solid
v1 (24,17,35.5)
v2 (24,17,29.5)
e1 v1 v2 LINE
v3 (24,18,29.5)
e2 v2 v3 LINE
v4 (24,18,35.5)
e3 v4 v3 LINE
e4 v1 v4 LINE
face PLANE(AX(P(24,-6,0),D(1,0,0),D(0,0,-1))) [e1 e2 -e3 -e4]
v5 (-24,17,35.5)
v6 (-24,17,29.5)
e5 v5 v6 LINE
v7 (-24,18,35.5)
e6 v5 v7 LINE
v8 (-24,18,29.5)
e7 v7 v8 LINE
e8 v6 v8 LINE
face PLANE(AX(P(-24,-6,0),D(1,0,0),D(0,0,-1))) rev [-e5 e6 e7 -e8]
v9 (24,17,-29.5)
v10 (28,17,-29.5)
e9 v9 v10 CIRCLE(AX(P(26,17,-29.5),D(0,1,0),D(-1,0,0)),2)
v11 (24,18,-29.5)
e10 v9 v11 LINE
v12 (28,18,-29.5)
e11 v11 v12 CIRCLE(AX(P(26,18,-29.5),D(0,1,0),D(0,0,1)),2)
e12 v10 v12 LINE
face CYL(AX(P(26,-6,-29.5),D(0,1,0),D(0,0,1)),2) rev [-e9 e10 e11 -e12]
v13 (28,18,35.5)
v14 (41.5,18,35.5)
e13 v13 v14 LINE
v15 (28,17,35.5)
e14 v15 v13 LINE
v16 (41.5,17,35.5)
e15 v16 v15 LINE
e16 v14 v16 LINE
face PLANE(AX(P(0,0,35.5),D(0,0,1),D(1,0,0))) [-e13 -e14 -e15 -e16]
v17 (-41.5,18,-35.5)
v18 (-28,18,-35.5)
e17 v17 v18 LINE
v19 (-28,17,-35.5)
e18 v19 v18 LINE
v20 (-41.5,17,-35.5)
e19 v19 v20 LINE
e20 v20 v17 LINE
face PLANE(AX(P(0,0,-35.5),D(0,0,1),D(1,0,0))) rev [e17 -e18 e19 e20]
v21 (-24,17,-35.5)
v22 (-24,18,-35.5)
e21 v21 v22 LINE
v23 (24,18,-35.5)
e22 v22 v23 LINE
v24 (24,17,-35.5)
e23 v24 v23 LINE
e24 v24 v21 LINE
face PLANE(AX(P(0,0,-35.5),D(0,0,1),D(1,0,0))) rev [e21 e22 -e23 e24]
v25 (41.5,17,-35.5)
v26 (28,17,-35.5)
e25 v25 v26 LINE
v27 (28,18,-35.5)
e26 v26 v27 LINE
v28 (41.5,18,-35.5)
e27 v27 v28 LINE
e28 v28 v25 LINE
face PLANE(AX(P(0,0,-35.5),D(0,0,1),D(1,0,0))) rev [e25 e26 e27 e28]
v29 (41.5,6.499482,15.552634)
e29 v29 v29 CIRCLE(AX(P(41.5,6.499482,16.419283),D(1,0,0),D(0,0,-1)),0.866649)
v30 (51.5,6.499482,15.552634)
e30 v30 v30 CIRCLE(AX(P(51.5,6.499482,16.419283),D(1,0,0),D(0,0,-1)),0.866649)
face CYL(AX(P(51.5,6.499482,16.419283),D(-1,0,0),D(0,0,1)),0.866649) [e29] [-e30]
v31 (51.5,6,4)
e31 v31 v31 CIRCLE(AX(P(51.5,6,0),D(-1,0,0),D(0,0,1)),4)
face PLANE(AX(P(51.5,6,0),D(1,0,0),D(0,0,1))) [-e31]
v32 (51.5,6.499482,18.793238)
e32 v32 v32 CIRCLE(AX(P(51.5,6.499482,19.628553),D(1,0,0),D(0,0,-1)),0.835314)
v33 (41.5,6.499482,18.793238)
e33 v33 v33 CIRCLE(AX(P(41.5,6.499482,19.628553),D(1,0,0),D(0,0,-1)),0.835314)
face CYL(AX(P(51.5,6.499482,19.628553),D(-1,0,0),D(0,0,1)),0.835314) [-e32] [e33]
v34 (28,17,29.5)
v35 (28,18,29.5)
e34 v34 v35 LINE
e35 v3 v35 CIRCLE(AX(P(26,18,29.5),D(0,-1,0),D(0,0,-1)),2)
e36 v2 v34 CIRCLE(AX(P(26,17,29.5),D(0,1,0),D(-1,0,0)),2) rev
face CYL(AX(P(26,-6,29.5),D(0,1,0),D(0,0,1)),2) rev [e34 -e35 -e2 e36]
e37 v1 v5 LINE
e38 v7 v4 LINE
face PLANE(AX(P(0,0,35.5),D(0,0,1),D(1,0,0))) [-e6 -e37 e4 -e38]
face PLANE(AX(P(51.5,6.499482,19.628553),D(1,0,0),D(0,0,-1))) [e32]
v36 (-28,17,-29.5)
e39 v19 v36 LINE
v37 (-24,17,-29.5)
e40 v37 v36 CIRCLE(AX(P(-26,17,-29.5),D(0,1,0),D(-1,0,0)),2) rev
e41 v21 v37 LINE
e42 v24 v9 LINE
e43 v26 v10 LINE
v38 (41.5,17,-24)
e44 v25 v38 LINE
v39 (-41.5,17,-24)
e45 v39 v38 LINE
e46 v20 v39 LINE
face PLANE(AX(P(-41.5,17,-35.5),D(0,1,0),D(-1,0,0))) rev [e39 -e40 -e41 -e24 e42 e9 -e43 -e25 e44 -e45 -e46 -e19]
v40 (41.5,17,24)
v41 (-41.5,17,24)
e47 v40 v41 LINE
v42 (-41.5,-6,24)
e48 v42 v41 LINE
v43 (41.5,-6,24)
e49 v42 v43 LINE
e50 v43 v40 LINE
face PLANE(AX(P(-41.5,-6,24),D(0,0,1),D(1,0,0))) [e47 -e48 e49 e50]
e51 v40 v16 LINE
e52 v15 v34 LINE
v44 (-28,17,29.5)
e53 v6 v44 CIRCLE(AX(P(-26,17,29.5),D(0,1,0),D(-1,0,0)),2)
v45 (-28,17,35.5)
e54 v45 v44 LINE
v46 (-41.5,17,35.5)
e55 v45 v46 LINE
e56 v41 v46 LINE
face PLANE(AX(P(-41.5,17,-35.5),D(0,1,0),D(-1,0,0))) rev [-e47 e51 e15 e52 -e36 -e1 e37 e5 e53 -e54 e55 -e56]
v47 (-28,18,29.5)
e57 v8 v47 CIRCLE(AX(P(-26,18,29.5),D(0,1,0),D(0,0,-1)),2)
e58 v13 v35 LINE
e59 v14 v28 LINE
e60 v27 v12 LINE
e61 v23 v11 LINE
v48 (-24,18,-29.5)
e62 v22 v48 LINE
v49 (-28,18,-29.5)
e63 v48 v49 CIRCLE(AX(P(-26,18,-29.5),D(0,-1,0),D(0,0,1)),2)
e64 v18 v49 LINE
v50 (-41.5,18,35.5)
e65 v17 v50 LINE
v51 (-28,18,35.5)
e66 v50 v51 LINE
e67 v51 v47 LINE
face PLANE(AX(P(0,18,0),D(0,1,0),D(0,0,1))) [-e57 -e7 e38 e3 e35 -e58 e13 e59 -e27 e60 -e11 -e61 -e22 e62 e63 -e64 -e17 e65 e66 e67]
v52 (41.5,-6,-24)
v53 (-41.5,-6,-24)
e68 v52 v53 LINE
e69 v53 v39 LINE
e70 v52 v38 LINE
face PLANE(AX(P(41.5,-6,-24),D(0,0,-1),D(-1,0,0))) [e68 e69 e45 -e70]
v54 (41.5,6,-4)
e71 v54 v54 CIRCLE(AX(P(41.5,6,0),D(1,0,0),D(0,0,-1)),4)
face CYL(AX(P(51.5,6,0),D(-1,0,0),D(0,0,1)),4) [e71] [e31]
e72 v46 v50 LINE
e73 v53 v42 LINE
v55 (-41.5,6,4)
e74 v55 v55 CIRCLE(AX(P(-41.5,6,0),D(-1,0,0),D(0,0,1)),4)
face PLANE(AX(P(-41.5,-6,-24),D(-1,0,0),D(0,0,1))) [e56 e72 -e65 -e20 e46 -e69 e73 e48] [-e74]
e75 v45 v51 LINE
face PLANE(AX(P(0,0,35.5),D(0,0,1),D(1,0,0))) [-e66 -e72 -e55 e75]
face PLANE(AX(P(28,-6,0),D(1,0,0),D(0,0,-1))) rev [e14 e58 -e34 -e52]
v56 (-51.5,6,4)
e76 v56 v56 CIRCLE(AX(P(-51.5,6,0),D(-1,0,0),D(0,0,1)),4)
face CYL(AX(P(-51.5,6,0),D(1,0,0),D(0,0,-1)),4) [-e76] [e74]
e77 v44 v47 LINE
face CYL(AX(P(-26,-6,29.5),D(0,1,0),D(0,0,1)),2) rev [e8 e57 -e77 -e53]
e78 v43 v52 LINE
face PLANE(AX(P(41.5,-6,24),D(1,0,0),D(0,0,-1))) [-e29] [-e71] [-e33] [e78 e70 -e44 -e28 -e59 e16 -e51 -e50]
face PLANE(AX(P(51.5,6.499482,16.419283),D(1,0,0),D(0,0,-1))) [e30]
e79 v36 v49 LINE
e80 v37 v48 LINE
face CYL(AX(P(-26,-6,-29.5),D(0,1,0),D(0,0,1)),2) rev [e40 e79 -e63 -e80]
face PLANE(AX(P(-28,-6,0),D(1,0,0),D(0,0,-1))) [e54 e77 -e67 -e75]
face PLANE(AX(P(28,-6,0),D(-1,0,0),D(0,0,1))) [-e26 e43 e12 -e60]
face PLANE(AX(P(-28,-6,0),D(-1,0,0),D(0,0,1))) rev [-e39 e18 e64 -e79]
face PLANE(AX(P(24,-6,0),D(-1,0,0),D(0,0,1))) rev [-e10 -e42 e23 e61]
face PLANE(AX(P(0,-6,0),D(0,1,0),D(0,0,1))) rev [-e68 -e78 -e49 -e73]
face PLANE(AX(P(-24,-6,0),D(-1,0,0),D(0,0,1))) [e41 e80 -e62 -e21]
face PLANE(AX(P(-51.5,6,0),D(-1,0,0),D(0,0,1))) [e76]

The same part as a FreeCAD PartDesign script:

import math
import FreeCAD as App
import Part
import Sketcher
Q = App.Units.Quantity


def add_polygon(sketch, points):
    """Adds a closed chain of lines whose ends are joined by coincident constraints."""
    first, n = sketch.GeometryCount, len(points)
    for a, b in zip(points, points[1:] + points[:1]):
        sketch.addGeometry(Part.LineSegment(App.Vector(*a, 0), App.Vector(*b, 0)), False)
    for i in range(n):
        sketch.addConstraint(Sketcher.Constraint("Coincident", first + i, 2, first + (i + 1) % n, 1))

doc = App.newDocument("Part")
body = doc.addObject("PartDesign::Body", "Body")

sketch1 = body.newObject("Sketcher::SketchObject", "Sketch")
sketch1.AttachmentSupport = (doc.getObject("XZ_Plane"), [""])
sketch1.MapMode = "FlatFace"
sketch1.AttachmentOffset = App.Placement(App.Vector(0, 0, -18), App.Rotation())
add_polygon(sketch1, [(-42, -24), (-42, 24), (42, 24), (42, -24)])
sketch1.addConstraint([
    Sketcher.Constraint("Vertical", 0),
    Sketcher.Constraint("Horizontal", 1),
    Sketcher.Constraint("Vertical", 2),
    Sketcher.Constraint("Horizontal", 3),
    Sketcher.Constraint("Symmetric", 0, 2, 2, 2, -1, 1),
    Sketcher.Constraint("DistanceX", 1, 1, 1, 2, Q("83 mm")),
    Sketcher.Constraint("DistanceY", 0, 1, 0, 2, Q("48 mm")),
])
pad1 = body.newObject("PartDesign::Pad", "Pad")
pad1.Profile = sketch1
pad1.Length = 24

sketch2 = body.newObject("Sketcher::SketchObject", "Sketch001")
sketch2.AttachmentSupport = (doc.getObject("XY_Plane"), [""])
sketch2.MapMode = "FlatFace"
add_polygon(sketch2, [(41.5, 18), (41.5, 17), (-41.5, 17), (-41.5, 18)])
sketch2.addConstraint([
    Sketcher.Constraint("Vertical", 0),
    Sketcher.Constraint("Horizontal", 1),
    Sketcher.Constraint("Vertical", 2),
    Sketcher.Constraint("Horizontal", 3),
    Sketcher.Constraint("DistanceX", 1, 2, 1, 1, Q("83 mm")),
    Sketcher.Constraint("DistanceY", 0, 2, 0, 1, Q("1 mm")),
    Sketcher.Constraint("DistanceY", -1, 1, 0, 2, Q("17 mm")),
    Sketcher.Constraint("DistanceX", -1, 1, 0, 2, Q("41.5 mm")),
])
pad2 = body.newObject("PartDesign::Pad", "Pad001")
pad2.Profile = sketch2
pad2.Length = 71
pad2.Midplane = True

sketch3 = body.newObject("Sketcher::SketchObject", "Sketch002")
sketch3.AttachmentSupport = (doc.getObject("XZ_Plane"), [""])
sketch3.MapMode = "FlatFace"
sketch3.AttachmentOffset = App.Placement(App.Vector(0, 0, -18), App.Rotation())
sketch3.addGeometry([
    Part.ArcOfCircle(Part.Circle(App.Vector(26, -29.5, 0), App.Vector(0, 0, 1), 2), math.radians(0), math.radians(180)),
    Part.LineSegment(App.Vector(28, -29.5, 0), App.Vector(28, -35.5, 0)),
    Part.LineSegment(App.Vector(28, -35.5, 0), App.Vector(24, -35.5, 0)),
    Part.LineSegment(App.Vector(24, -35.5, 0), App.Vector(24, -29.5, 0)),
], False)
sketch3.addConstraint([
    Sketcher.Constraint("Tangent", 0, 1, 1, 1),
    Sketcher.Constraint("Coincident", 1, 2, 2, 1),
    Sketcher.Constraint("Coincident", 2, 2, 3, 1),
    Sketcher.Constraint("Tangent", 3, 2, 0, 2),
    Sketcher.Constraint("Vertical", 1),
    Sketcher.Constraint("Horizontal", 2),
    Sketcher.Constraint("Vertical", 3),
    Sketcher.Constraint("Radius", 0, Q("2 mm")),
    Sketcher.Constraint("DistanceY", 1, 2, 1, 1, Q("6 mm")),
    Sketcher.Constraint("DistanceX", -1, 1, 0, 3, Q("26 mm")),
    Sketcher.Constraint("DistanceY", 0, 3, -1, 1, Q("29.5 mm")),
])
pocket1 = body.newObject("PartDesign::Pocket", "Pocket")
pocket1.Profile = sketch3
pocket1.Type = "ThroughAll"
pocket1.Reversed = True
doc.recompute()

mirrored = body.newObject("PartDesign::Mirrored", "Mirrored")
mirrored.Originals = [pocket1]
mirrored.MirrorPlane = (doc.getObject("YZ_Plane"), [""])
body.Tip = mirrored
doc.recompute()

mirrored2 = body.newObject("PartDesign::Mirrored", "Mirrored001")
mirrored2.Originals = [pocket1]
mirrored2.MirrorPlane = (doc.getObject("XY_Plane"), [""])
body.Tip = mirrored2

sketch4 = body.newObject("Sketcher::SketchObject", "Sketch003")
sketch4.AttachmentSupport = (doc.getObject("XZ_Plane"), [""])
sketch4.MapMode = "FlatFace"
sketch4.AttachmentOffset = App.Placement(App.Vector(0, 0, -18), App.Rotation())
sketch4.addGeometry([
    Part.ArcOfCircle(Part.Circle(App.Vector(-26, 29.5, 0), App.Vector(0, 0, 1), 2), math.radians(180), math.radians(360)),
    Part.LineSegment(App.Vector(-28, 29.5, 0), App.Vector(-28, 35.5, 0)),
    Part.LineSegment(App.Vector(-28, 35.5, 0), App.Vector(-24, 35.5, 0)),
    Part.LineSegment(App.Vector(-24, 35.5, 0), App.Vector(-24, 29.5, 0)),
], False)
sketch4.addConstraint([
    Sketcher.Constraint("Tangent", 0, 1, 1, 1),
    Sketcher.Constraint("Coincident", 1, 2, 2, 1),
    Sketcher.Constraint("Coincident", 2, 2, 3, 1),
    Sketcher.Constraint("Tangent", 3, 2, 0, 2),
    Sketcher.Constraint("Vertical", 1),
    Sketcher.Constraint("Horizontal", 2),
    Sketcher.Constraint("Vertical", 3),
    Sketcher.Constraint("Radius", 0, Q("2 mm")),
    Sketcher.Constraint("DistanceY", 1, 1, 1, 2, Q("6 mm")),
    Sketcher.Constraint("DistanceX", 0, 3, -1, 1, Q("26 mm")),
    Sketcher.Constraint("DistanceY", -1, 1, 0, 3, Q("29.5 mm")),
])
pocket2 = body.newObject("PartDesign::Pocket", "Pocket001")
pocket2.Profile = sketch4
pocket2.Type = "ThroughAll"
pocket2.Reversed = True

sketch5 = body.newObject("Sketcher::SketchObject", "Sketch004")
sketch5.AttachmentSupport = (doc.getObject("YZ_Plane"), [""])
sketch5.MapMode = "FlatFace"
sketch5.AttachmentOffset = App.Placement(App.Vector(0, 0, -41.5), App.Rotation())
sketch5.addGeometry(Part.Circle(App.Vector(6, 0, 0), App.Vector(0, 0, 1), 4), False)
sketch5.addConstraint([
    Sketcher.Constraint("PointOnObject", 0, 3, -1),
    Sketcher.Constraint("Diameter", 0, Q("8 mm")),
    Sketcher.Constraint("DistanceX", -1, 1, 0, 3, Q("6 mm")),
])
pad3 = body.newObject("PartDesign::Pad", "Pad002")
pad3.Profile = sketch5
pad3.Length = 10
pad3.Reversed = True
doc.recompute()

mirrored3 = body.newObject("PartDesign::Mirrored", "Mirrored002")
mirrored3.Originals = [pad3]
mirrored3.MirrorPlane = (doc.getObject("YZ_Plane"), [""])
body.Tip = mirrored3

sketch6 = body.newObject("Sketcher::SketchObject", "Sketch005")
sketch6.AttachmentSupport = (doc.getObject("YZ_Plane"), [""])
sketch6.MapMode = "FlatFace"
sketch6.AttachmentOffset = App.Placement(App.Vector(0, 0, 41.5), App.Rotation())
sketch6.addGeometry([
    Part.Circle(App.Vector(6.5, 19.6, 0), App.Vector(0, 0, 1), 0.8),
    Part.Circle(App.Vector(6.5, 16.4, 0), App.Vector(0, 0, 1), 0.9),
], False)
sketch6.addConstraint([
    Sketcher.Constraint("Vertical", 0, 3, 1, 3),
    Sketcher.Constraint("Diameter", 1, Q("1.733299 mm")),
    Sketcher.Constraint("Diameter", 0, Q("1.670629 mm")),
    Sketcher.Constraint("DistanceX", -1, 1, 0, 3, Q("6.499482 mm")),
    Sketcher.Constraint("DistanceY", 1, 3, 0, 3, Q("3.20927 mm")),
    Sketcher.Constraint("DistanceY", -1, 1, 0, 3, Q("19.628553 mm")),
])
pad4 = body.newObject("PartDesign::Pad", "Pad003")
pad4.Profile = sketch6
pad4.Length = 10

doc.recompute()
